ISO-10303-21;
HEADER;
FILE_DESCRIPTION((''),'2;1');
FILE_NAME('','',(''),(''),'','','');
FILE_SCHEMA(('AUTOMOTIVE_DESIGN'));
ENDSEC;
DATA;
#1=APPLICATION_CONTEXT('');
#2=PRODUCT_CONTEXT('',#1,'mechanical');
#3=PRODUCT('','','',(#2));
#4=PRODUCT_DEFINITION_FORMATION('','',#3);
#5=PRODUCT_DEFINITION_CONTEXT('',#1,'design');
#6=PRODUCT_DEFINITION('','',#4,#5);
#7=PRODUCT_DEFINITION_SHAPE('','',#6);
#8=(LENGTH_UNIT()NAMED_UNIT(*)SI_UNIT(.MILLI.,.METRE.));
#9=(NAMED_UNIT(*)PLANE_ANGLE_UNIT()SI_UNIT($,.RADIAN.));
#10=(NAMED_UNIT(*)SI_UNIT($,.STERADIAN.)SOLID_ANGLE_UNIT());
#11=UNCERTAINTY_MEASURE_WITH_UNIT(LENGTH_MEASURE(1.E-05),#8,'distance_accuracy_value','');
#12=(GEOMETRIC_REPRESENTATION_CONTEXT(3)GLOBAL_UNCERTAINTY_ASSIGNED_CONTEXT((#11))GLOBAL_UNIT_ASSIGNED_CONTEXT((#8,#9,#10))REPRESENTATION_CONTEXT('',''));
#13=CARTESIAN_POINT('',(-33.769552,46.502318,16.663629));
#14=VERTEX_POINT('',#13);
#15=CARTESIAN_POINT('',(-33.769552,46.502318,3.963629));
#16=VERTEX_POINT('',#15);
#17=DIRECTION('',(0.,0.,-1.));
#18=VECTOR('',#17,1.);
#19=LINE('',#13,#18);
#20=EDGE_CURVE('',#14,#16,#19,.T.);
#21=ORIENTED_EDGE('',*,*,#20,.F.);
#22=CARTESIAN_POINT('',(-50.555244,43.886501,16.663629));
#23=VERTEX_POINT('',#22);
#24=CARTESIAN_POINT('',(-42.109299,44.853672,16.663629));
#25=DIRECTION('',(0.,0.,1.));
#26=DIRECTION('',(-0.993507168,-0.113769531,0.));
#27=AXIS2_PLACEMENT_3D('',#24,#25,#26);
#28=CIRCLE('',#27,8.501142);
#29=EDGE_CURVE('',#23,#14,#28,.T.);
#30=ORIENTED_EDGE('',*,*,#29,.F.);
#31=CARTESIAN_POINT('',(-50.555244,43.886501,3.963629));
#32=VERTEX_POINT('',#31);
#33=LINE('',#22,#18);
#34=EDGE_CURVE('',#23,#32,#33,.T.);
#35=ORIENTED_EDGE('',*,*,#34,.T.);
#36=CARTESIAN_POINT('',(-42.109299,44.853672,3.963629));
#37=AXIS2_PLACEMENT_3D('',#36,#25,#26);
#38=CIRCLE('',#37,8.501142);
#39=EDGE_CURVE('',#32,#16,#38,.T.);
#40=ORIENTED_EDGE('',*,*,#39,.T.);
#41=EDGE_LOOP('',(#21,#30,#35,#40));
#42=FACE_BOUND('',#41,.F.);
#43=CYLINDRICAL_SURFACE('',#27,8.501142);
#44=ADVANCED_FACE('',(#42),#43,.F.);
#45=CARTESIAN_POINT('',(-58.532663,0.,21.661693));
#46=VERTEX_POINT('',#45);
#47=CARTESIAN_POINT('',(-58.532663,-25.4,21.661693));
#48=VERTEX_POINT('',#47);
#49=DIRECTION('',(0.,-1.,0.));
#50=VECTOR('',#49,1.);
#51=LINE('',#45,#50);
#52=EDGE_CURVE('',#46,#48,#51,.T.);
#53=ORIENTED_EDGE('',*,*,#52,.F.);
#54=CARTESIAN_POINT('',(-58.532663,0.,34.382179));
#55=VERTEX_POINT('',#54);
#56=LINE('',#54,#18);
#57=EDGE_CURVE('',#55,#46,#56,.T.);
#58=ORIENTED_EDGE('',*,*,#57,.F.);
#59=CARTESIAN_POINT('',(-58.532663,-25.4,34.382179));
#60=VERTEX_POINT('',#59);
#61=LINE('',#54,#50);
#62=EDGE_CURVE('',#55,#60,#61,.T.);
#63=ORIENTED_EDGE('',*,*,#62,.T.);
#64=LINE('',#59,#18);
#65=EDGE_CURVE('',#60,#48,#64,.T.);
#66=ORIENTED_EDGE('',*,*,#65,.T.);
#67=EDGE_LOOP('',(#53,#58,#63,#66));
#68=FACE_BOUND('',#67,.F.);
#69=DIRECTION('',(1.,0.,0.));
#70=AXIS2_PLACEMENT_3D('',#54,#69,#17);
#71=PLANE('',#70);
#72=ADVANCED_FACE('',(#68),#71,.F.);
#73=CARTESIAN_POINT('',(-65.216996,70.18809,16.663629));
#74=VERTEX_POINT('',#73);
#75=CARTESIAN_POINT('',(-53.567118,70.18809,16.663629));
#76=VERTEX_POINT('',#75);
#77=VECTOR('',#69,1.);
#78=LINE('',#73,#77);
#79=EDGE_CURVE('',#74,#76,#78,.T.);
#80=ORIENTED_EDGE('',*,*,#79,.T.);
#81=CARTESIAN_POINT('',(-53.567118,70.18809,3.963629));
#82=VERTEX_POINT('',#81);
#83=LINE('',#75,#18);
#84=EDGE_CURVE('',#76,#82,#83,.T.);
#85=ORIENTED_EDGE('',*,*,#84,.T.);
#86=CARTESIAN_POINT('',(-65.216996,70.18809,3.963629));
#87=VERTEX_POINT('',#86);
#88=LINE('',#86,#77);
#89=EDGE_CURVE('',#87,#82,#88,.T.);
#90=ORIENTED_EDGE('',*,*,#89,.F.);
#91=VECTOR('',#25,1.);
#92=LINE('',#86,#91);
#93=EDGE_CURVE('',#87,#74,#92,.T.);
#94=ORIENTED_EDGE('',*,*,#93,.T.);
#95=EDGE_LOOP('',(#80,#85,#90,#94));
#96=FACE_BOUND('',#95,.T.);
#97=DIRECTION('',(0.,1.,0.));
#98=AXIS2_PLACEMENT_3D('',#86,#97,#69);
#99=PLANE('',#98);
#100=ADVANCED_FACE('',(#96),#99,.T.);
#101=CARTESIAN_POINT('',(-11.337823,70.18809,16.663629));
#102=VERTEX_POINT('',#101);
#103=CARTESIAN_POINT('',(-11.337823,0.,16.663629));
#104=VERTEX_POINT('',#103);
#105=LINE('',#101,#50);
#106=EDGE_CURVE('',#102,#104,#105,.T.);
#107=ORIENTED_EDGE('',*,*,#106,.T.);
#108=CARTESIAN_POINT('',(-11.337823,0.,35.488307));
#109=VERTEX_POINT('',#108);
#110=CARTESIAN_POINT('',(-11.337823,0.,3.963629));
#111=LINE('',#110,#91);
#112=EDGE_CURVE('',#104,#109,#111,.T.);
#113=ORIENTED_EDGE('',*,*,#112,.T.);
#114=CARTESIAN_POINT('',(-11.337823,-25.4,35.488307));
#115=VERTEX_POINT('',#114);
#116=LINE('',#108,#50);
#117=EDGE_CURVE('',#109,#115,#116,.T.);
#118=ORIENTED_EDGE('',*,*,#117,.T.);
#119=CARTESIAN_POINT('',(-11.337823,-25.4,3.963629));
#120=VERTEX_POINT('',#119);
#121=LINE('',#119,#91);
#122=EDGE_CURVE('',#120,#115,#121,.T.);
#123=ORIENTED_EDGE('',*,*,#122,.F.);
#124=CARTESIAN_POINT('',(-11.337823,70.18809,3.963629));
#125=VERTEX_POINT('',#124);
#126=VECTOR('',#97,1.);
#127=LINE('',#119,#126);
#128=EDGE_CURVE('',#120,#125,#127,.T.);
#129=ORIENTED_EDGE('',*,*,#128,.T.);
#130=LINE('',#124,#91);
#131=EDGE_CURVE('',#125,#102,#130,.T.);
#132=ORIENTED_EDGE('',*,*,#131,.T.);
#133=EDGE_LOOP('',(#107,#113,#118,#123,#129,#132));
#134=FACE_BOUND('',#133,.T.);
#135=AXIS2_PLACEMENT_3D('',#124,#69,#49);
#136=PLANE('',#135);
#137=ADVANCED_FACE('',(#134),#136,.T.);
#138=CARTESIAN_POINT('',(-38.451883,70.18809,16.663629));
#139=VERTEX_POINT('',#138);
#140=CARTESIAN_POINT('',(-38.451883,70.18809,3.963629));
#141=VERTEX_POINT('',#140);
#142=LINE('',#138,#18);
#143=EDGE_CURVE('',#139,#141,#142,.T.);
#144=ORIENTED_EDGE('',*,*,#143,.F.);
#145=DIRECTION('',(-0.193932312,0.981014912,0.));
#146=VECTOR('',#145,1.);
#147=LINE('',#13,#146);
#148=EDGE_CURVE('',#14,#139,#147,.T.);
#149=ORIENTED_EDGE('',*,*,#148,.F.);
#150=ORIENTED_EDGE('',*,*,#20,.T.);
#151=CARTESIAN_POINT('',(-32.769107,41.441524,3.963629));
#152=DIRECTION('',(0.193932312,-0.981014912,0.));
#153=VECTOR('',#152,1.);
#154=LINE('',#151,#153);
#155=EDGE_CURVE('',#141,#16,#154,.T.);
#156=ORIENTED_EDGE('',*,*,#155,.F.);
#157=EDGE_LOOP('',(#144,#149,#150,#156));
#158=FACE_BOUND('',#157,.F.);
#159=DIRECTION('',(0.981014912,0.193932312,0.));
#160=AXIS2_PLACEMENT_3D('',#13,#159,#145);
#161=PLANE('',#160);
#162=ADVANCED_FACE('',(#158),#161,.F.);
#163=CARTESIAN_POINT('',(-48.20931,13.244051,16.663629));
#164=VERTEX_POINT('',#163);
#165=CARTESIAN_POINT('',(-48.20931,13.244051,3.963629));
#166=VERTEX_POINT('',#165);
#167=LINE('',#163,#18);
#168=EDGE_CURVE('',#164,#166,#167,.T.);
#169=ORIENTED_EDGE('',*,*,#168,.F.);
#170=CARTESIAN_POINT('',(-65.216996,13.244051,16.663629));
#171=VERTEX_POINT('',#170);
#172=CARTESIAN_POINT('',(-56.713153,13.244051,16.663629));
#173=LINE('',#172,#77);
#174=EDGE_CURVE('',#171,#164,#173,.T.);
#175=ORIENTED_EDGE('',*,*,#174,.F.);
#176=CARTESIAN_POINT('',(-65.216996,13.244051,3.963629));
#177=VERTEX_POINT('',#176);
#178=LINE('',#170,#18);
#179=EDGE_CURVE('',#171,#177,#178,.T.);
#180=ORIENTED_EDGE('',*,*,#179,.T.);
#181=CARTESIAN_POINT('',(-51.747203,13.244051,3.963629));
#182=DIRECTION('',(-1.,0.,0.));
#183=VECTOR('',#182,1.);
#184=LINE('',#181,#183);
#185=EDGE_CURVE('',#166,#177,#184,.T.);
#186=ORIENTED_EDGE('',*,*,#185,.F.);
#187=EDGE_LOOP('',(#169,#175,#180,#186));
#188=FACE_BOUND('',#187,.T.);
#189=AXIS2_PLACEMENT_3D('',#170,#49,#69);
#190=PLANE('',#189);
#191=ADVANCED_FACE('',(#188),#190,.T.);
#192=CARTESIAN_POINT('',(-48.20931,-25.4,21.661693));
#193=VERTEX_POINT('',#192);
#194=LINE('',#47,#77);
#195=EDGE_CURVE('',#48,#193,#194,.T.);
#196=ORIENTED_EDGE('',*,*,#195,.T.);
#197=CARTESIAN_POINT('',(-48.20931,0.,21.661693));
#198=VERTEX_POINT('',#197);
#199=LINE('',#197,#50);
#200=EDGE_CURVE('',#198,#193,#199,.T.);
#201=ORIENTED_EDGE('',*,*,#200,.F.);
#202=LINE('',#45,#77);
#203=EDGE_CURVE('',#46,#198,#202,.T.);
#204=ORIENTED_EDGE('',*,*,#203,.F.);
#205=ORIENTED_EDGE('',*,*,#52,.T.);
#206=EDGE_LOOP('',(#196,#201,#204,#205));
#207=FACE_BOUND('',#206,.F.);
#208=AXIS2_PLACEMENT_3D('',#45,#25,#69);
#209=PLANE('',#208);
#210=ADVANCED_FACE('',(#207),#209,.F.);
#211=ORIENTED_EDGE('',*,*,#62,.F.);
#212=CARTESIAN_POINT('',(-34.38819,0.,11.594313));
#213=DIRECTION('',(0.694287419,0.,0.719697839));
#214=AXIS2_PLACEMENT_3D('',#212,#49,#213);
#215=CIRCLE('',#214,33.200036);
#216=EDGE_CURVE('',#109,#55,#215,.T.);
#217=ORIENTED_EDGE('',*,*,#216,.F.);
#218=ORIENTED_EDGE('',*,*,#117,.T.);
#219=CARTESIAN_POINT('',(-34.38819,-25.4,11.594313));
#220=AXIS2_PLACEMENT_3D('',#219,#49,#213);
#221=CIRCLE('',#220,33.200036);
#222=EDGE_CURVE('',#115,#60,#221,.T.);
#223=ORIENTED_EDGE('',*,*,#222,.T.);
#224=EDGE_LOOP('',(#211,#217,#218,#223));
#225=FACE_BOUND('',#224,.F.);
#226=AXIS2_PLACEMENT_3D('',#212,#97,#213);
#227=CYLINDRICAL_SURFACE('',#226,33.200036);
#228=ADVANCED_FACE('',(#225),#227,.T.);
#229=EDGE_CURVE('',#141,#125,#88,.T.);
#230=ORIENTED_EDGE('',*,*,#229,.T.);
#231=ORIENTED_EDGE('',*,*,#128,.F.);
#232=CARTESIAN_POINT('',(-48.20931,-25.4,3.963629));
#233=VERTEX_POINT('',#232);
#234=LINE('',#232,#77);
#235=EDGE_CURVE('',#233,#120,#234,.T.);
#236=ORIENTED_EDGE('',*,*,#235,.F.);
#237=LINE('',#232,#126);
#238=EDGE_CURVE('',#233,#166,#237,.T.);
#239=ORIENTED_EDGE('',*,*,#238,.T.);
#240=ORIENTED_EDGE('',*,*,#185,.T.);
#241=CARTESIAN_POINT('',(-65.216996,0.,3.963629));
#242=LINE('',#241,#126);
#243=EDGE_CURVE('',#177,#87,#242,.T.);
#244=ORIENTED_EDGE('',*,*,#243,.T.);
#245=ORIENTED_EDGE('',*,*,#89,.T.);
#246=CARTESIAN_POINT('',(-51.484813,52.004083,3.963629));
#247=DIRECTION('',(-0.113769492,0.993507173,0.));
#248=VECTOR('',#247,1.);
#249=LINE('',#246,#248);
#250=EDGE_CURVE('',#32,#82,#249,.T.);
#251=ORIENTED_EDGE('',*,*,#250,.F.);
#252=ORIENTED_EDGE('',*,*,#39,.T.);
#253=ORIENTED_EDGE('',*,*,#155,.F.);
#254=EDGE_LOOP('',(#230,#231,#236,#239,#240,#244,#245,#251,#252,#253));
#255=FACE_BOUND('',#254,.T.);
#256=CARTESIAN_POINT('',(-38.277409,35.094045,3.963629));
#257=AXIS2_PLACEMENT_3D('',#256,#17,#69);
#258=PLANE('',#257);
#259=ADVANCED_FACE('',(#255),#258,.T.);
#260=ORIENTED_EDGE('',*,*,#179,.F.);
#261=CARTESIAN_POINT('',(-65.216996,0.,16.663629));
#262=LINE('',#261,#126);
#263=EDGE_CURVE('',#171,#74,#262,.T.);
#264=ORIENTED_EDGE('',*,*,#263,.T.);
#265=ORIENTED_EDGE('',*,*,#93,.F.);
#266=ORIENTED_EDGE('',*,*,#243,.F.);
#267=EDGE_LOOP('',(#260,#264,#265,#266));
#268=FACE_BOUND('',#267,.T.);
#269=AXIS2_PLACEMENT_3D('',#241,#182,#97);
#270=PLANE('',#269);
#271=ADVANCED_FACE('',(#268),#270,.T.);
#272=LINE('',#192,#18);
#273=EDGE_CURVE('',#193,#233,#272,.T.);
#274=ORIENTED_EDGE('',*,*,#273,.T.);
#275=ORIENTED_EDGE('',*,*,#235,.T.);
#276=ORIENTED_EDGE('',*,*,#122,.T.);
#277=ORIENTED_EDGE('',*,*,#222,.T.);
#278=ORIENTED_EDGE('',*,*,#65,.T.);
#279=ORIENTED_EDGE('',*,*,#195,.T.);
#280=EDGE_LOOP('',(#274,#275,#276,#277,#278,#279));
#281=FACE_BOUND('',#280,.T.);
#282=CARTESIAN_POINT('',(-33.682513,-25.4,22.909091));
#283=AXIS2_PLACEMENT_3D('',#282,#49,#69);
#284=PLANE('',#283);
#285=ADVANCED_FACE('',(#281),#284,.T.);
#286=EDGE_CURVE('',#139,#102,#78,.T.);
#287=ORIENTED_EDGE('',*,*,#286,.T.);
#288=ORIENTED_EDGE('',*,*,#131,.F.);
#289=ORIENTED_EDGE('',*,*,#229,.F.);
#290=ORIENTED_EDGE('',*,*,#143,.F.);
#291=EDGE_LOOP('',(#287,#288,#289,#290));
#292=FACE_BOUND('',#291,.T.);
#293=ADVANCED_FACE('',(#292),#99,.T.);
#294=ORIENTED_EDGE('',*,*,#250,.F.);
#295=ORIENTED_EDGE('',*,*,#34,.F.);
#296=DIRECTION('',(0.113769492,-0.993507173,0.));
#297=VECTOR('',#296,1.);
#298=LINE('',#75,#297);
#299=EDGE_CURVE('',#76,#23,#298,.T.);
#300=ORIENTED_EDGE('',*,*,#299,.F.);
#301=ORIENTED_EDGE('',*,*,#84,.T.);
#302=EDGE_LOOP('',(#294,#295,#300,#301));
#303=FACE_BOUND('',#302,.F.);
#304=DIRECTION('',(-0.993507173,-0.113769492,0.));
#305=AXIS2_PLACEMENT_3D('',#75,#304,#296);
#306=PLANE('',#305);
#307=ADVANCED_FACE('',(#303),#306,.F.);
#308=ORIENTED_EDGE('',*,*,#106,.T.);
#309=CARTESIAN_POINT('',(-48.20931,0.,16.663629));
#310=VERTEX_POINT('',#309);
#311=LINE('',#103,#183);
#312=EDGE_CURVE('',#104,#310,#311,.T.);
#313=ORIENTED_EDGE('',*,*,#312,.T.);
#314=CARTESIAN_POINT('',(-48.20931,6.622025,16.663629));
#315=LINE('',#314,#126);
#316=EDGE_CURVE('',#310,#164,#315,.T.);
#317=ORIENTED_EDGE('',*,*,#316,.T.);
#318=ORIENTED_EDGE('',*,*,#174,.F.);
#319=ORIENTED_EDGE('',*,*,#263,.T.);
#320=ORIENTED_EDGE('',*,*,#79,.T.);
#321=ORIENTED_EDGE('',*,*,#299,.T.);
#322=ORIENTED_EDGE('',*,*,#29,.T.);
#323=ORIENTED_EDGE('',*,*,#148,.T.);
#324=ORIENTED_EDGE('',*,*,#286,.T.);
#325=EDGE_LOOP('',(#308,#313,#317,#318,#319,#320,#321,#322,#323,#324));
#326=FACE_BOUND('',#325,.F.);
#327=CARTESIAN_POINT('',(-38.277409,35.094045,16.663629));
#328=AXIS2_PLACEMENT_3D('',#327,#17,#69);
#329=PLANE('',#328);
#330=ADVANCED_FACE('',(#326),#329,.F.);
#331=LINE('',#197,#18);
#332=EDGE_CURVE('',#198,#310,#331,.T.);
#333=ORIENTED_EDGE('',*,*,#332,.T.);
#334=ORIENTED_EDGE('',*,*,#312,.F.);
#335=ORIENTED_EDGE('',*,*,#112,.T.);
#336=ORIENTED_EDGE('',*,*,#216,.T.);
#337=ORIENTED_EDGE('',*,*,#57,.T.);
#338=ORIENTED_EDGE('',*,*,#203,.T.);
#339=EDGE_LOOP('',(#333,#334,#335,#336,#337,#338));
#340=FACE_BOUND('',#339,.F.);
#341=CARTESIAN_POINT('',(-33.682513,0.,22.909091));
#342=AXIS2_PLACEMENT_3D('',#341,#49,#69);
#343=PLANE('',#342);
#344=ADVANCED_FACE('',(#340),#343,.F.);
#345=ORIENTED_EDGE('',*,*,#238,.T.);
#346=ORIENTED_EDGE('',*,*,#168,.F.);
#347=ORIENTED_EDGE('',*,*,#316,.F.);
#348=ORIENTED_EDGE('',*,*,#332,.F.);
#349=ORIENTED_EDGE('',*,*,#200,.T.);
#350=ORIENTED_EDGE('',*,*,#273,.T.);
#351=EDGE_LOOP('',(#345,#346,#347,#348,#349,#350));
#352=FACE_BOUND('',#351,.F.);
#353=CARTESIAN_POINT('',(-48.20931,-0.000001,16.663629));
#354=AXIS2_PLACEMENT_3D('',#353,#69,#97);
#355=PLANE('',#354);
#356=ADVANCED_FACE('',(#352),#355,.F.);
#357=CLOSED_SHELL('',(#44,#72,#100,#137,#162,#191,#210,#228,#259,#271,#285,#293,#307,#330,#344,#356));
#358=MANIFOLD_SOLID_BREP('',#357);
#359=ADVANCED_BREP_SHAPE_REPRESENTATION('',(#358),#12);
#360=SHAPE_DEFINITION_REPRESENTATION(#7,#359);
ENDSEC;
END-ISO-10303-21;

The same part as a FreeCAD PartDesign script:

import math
import FreeCAD as App
import Part
import Sketcher

V = App.Vector
Q = App.Units.Quantity


def add_polygon(sketch, points):
    """Adds a closed chain of lines whose ends are joined by coincident constraints."""
    first, n = sketch.GeometryCount, len(points)
    for a, b in zip(points, points[1:] + points[:1]):
        sketch.addGeometry(Part.LineSegment(App.Vector(*a, 0), App.Vector(*b, 0)), False)
    for i in range(n):
        sketch.addConstraint(Sketcher.Constraint("Coincident", first + i, 2, first + (i + 1) % n, 1))

doc = App.newDocument("Part")
params = doc.addObject("Spreadsheet::Sheet", "Params")
for row, (alias, value) in enumerate([
    ("pad1_length", "1 in"),
    ("pad2_length", "0.5 in"),
    ("pocket1_length", "1 in"),
    ("pocket2_length", "1 in"),
], start=1):
    params.set(f"A{row}", alias)
    params.set(f"B{row}", "=" + value)
    params.setAlias(f"B{row}", alias)

body = doc.addObject("PartDesign::Body", "Body")

sketch1 = body.newObject("Sketcher::SketchObject", "Sketch")
sketch1.AttachmentSupport = (doc.getObject("XZ_Plane"), [""])
sketch1.MapMode = "FlatFace"
sketch1.addGeometry(Part.ArcOfCircle(Part.Circle(V(-34, 12, 0), V(0, 0, 1), 33), math.radians(46), math.radians(137)), False)
sketch1.addGeometry(Part.LineSegment(V(-59, 34, 0), V(-59, 22, 0)), False)
sketch1.addGeometry(Part.LineSegment(V(-59, 22, 0), V(-48, 22, 0)), False)
sketch1.addGeometry(Part.LineSegment(V(-48, 22, 0), V(-48, 4, 0)), False)
sketch1.addGeometry(Part.LineSegment(V(-48, 4, 0), V(-11, 4, 0)), False)
sketch1.addGeometry(Part.LineSegment(V(-11, 4, 0), V(-11, 35, 0)), False)
sketch1.addConstraint(Sketcher.Constraint("Coincident", 0, 2, 1, 1))
sketch1.addConstraint(Sketcher.Constraint("Coincident", 1, 2, 2, 1))
sketch1.addConstraint(Sketcher.Constraint("Coincident", 2, 2, 3, 1))
sketch1.addConstraint(Sketcher.Constraint("Coincident", 3, 2, 4, 1))
sketch1.addConstraint(Sketcher.Constraint("Coincident", 4, 2, 5, 1))
sketch1.addConstraint(Sketcher.Constraint("Coincident", 5, 2, 0, 1))
sketch1.addConstraint(Sketcher.Constraint("Vertical", 1))
sketch1.addConstraint(Sketcher.Constraint("Horizontal", 2))
sketch1.addConstraint(Sketcher.Constraint("Vertical", 3))
sketch1.addConstraint(Sketcher.Constraint("Horizontal", 4))
sketch1.addConstraint(Sketcher.Constraint("Vertical", 5))
sketch1.addConstraint(Sketcher.Constraint("Radius", 0, 33.200036))
sketch1.addConstraint(Sketcher.Constraint("DistanceX", 2, 1, 2, 2, 10.323353))
sketch1.addConstraint(Sketcher.Constraint("DistanceX", 4, 1, 4, 2, 36.871487))
sketch1.addConstraint(Sketcher.Constraint("DistanceY", 1, 2, 1, 1, 12.720486))
sketch1.addConstraint(Sketcher.Constraint("DistanceY", 3, 2, 3, 1, 17.698064))
sketch1.addConstraint(Sketcher.Constraint("DistanceY", 5, 1, 5, 2, 31.524678))
sketch1.addConstraint(Sketcher.Constraint("DistanceX", 0, 3, -1, 1, 34.38819))
sketch1.addConstraint(Sketcher.Constraint("DistanceY", -1, 1, 0, 2, 34.382179))
pad1 = body.newObject("PartDesign::Pad", "Pad")
pad1.Profile = sketch1
pad1.setExpression("Length", "Params.pad1_length")

sketch2 = body.newObject("Sketcher::SketchObject", "Sketch001")
sketch2.AttachmentSupport = (doc.getObject("XY_Plane"), [""])
sketch2.MapMode = "FlatFace"
sketch2.AttachmentOffset = App.Placement(V(0, 0, 3.963629), App.Rotation())
add_polygon(sketch2, [(-11, 70), (-11, 0), (-65, 0), (-65, 70)])
sketch2.addConstraint(Sketcher.Constraint("Vertical", 0))
sketch2.addConstraint(Sketcher.Constraint("Horizontal", 1))
sketch2.addConstraint(Sketcher.Constraint("Vertical", 2))
sketch2.addConstraint(Sketcher.Constraint("Horizontal", 3))
sketch2.addConstraint(Sketcher.Constraint("PointOnObject", 0, 2, -1))
sketch2.addConstraint(Sketcher.Constraint("DistanceY", 0, 2, 0, 1, 70.18809))
sketch2.addConstraint(Sketcher.Constraint("DistanceX", 1, 2, 1, 1, 53.879173))
sketch2.addConstraint(Sketcher.Constraint("DistanceX", 0, 2, -1, 1, 11.337823))
pad2 = body.newObject("PartDesign::Pad", "Pad001")
pad2.Profile = sketch2
pad2.setExpression("Length", "Params.pad2_length")

sketch3 = body.newObject("Sketcher::SketchObject", "Sketch002")
sketch3.AttachmentSupport = (doc.getObject("XY_Plane"), [""])
sketch3.MapMode = "FlatFace"
sketch3.AttachmentOffset = App.Placement(V(0, 0, 16.663629), App.Rotation())
add_polygon(sketch3, [(-65, 13), (-65, 0), (-48, 0), (-48, 13)])
sketch3.addConstraint(Sketcher.Constraint("Vertical", 0))
sketch3.addConstraint(Sketcher.Constraint("Horizontal", 1))
sketch3.addConstraint(Sketcher.Constraint("Vertical", 2))
sketch3.addConstraint(Sketcher.Constraint("Horizontal", 3))
sketch3.addConstraint(Sketcher.Constraint("PointOnObject", 0, 2, -1))
sketch3.addConstraint(Sketcher.Constraint("DistanceY", 0, 2, 0, 1, 13.244051))
sketch3.addConstraint(Sketcher.Constraint("DistanceX", 1, 1, 1, 2, 17.007686))
sketch3.addConstraint(Sketcher.Constraint("DistanceX", 1, 2, -1, 1, 48.20931))
pocket1 = body.newObject("PartDesign::Pocket", "Pocket")
pocket1.Profile = sketch3
pocket1.setExpression("Length", "Params.pocket1_length")

sketch4 = body.newObject("Sketcher::SketchObject", "Sketch003")
sketch4.AttachmentSupport = (doc.getObject("XY_Plane"), [""])
sketch4.MapMode = "FlatFace"
sketch4.AttachmentOffset = App.Placement(V(0, 0, 16.663629), App.Rotation())
sketch4.addGeometry(Part.LineSegment(V(-54, 70, 0), V(-51, 44, 0)), False)
sketch4.addGeometry(Part.ArcOfCircle(Part.Circle(V(-42, 45, 0), V(0, 0, 1), 9), math.radians(-173), math.radians(11)), False)
sketch4.addGeometry(Part.LineSegment(V(-34, 47, 0), V(-38, 70, 0)), False)
sketch4.addGeometry(Part.LineSegment(V(-38, 70, 0), V(-54, 70, 0)), False)
sketch4.addConstraint(Sketcher.Constraint("Tangent", 0, 2, 1, 1))
sketch4.addConstraint(Sketcher.Constraint("Tangent", 1, 2, 2, 1))
sketch4.addConstraint(Sketcher.Constraint("Coincident", 2, 2, 3, 1))
sketch4.addConstraint(Sketcher.Constraint("Coincident", 3, 2, 0, 1))
sketch4.addConstraint(Sketcher.Constraint("Horizontal", 3))
sketch4.addConstraint(Sketcher.Constraint("Radius", 1, 8.501142))
sketch4.addConstraint(Sketcher.Constraint("DistanceY", -1, 1, 1, 2, Q("1.8307999 in")))
sketch4.addConstraint(Sketcher.Constraint("DistanceX", 1, 3, -1, 1, 42.109299))
sketch4.addConstraint(Sketcher.Constraint("DistanceY", -1, 1, 0, 2, 43.886501))
sketch4.addConstraint(Sketcher.Constraint("Distance", 2, 24.144151))
sketch4.addConstraint(Sketcher.Constraint("DistanceX", 3, 2, 3, 1, 15.115235))
pocket2 = body.newObject("PartDesign::Pocket", "Pocket001")
pocket2.Profile = sketch4
pocket2.setExpression("Length", "Params.pocket2_length")

doc.recompute()
